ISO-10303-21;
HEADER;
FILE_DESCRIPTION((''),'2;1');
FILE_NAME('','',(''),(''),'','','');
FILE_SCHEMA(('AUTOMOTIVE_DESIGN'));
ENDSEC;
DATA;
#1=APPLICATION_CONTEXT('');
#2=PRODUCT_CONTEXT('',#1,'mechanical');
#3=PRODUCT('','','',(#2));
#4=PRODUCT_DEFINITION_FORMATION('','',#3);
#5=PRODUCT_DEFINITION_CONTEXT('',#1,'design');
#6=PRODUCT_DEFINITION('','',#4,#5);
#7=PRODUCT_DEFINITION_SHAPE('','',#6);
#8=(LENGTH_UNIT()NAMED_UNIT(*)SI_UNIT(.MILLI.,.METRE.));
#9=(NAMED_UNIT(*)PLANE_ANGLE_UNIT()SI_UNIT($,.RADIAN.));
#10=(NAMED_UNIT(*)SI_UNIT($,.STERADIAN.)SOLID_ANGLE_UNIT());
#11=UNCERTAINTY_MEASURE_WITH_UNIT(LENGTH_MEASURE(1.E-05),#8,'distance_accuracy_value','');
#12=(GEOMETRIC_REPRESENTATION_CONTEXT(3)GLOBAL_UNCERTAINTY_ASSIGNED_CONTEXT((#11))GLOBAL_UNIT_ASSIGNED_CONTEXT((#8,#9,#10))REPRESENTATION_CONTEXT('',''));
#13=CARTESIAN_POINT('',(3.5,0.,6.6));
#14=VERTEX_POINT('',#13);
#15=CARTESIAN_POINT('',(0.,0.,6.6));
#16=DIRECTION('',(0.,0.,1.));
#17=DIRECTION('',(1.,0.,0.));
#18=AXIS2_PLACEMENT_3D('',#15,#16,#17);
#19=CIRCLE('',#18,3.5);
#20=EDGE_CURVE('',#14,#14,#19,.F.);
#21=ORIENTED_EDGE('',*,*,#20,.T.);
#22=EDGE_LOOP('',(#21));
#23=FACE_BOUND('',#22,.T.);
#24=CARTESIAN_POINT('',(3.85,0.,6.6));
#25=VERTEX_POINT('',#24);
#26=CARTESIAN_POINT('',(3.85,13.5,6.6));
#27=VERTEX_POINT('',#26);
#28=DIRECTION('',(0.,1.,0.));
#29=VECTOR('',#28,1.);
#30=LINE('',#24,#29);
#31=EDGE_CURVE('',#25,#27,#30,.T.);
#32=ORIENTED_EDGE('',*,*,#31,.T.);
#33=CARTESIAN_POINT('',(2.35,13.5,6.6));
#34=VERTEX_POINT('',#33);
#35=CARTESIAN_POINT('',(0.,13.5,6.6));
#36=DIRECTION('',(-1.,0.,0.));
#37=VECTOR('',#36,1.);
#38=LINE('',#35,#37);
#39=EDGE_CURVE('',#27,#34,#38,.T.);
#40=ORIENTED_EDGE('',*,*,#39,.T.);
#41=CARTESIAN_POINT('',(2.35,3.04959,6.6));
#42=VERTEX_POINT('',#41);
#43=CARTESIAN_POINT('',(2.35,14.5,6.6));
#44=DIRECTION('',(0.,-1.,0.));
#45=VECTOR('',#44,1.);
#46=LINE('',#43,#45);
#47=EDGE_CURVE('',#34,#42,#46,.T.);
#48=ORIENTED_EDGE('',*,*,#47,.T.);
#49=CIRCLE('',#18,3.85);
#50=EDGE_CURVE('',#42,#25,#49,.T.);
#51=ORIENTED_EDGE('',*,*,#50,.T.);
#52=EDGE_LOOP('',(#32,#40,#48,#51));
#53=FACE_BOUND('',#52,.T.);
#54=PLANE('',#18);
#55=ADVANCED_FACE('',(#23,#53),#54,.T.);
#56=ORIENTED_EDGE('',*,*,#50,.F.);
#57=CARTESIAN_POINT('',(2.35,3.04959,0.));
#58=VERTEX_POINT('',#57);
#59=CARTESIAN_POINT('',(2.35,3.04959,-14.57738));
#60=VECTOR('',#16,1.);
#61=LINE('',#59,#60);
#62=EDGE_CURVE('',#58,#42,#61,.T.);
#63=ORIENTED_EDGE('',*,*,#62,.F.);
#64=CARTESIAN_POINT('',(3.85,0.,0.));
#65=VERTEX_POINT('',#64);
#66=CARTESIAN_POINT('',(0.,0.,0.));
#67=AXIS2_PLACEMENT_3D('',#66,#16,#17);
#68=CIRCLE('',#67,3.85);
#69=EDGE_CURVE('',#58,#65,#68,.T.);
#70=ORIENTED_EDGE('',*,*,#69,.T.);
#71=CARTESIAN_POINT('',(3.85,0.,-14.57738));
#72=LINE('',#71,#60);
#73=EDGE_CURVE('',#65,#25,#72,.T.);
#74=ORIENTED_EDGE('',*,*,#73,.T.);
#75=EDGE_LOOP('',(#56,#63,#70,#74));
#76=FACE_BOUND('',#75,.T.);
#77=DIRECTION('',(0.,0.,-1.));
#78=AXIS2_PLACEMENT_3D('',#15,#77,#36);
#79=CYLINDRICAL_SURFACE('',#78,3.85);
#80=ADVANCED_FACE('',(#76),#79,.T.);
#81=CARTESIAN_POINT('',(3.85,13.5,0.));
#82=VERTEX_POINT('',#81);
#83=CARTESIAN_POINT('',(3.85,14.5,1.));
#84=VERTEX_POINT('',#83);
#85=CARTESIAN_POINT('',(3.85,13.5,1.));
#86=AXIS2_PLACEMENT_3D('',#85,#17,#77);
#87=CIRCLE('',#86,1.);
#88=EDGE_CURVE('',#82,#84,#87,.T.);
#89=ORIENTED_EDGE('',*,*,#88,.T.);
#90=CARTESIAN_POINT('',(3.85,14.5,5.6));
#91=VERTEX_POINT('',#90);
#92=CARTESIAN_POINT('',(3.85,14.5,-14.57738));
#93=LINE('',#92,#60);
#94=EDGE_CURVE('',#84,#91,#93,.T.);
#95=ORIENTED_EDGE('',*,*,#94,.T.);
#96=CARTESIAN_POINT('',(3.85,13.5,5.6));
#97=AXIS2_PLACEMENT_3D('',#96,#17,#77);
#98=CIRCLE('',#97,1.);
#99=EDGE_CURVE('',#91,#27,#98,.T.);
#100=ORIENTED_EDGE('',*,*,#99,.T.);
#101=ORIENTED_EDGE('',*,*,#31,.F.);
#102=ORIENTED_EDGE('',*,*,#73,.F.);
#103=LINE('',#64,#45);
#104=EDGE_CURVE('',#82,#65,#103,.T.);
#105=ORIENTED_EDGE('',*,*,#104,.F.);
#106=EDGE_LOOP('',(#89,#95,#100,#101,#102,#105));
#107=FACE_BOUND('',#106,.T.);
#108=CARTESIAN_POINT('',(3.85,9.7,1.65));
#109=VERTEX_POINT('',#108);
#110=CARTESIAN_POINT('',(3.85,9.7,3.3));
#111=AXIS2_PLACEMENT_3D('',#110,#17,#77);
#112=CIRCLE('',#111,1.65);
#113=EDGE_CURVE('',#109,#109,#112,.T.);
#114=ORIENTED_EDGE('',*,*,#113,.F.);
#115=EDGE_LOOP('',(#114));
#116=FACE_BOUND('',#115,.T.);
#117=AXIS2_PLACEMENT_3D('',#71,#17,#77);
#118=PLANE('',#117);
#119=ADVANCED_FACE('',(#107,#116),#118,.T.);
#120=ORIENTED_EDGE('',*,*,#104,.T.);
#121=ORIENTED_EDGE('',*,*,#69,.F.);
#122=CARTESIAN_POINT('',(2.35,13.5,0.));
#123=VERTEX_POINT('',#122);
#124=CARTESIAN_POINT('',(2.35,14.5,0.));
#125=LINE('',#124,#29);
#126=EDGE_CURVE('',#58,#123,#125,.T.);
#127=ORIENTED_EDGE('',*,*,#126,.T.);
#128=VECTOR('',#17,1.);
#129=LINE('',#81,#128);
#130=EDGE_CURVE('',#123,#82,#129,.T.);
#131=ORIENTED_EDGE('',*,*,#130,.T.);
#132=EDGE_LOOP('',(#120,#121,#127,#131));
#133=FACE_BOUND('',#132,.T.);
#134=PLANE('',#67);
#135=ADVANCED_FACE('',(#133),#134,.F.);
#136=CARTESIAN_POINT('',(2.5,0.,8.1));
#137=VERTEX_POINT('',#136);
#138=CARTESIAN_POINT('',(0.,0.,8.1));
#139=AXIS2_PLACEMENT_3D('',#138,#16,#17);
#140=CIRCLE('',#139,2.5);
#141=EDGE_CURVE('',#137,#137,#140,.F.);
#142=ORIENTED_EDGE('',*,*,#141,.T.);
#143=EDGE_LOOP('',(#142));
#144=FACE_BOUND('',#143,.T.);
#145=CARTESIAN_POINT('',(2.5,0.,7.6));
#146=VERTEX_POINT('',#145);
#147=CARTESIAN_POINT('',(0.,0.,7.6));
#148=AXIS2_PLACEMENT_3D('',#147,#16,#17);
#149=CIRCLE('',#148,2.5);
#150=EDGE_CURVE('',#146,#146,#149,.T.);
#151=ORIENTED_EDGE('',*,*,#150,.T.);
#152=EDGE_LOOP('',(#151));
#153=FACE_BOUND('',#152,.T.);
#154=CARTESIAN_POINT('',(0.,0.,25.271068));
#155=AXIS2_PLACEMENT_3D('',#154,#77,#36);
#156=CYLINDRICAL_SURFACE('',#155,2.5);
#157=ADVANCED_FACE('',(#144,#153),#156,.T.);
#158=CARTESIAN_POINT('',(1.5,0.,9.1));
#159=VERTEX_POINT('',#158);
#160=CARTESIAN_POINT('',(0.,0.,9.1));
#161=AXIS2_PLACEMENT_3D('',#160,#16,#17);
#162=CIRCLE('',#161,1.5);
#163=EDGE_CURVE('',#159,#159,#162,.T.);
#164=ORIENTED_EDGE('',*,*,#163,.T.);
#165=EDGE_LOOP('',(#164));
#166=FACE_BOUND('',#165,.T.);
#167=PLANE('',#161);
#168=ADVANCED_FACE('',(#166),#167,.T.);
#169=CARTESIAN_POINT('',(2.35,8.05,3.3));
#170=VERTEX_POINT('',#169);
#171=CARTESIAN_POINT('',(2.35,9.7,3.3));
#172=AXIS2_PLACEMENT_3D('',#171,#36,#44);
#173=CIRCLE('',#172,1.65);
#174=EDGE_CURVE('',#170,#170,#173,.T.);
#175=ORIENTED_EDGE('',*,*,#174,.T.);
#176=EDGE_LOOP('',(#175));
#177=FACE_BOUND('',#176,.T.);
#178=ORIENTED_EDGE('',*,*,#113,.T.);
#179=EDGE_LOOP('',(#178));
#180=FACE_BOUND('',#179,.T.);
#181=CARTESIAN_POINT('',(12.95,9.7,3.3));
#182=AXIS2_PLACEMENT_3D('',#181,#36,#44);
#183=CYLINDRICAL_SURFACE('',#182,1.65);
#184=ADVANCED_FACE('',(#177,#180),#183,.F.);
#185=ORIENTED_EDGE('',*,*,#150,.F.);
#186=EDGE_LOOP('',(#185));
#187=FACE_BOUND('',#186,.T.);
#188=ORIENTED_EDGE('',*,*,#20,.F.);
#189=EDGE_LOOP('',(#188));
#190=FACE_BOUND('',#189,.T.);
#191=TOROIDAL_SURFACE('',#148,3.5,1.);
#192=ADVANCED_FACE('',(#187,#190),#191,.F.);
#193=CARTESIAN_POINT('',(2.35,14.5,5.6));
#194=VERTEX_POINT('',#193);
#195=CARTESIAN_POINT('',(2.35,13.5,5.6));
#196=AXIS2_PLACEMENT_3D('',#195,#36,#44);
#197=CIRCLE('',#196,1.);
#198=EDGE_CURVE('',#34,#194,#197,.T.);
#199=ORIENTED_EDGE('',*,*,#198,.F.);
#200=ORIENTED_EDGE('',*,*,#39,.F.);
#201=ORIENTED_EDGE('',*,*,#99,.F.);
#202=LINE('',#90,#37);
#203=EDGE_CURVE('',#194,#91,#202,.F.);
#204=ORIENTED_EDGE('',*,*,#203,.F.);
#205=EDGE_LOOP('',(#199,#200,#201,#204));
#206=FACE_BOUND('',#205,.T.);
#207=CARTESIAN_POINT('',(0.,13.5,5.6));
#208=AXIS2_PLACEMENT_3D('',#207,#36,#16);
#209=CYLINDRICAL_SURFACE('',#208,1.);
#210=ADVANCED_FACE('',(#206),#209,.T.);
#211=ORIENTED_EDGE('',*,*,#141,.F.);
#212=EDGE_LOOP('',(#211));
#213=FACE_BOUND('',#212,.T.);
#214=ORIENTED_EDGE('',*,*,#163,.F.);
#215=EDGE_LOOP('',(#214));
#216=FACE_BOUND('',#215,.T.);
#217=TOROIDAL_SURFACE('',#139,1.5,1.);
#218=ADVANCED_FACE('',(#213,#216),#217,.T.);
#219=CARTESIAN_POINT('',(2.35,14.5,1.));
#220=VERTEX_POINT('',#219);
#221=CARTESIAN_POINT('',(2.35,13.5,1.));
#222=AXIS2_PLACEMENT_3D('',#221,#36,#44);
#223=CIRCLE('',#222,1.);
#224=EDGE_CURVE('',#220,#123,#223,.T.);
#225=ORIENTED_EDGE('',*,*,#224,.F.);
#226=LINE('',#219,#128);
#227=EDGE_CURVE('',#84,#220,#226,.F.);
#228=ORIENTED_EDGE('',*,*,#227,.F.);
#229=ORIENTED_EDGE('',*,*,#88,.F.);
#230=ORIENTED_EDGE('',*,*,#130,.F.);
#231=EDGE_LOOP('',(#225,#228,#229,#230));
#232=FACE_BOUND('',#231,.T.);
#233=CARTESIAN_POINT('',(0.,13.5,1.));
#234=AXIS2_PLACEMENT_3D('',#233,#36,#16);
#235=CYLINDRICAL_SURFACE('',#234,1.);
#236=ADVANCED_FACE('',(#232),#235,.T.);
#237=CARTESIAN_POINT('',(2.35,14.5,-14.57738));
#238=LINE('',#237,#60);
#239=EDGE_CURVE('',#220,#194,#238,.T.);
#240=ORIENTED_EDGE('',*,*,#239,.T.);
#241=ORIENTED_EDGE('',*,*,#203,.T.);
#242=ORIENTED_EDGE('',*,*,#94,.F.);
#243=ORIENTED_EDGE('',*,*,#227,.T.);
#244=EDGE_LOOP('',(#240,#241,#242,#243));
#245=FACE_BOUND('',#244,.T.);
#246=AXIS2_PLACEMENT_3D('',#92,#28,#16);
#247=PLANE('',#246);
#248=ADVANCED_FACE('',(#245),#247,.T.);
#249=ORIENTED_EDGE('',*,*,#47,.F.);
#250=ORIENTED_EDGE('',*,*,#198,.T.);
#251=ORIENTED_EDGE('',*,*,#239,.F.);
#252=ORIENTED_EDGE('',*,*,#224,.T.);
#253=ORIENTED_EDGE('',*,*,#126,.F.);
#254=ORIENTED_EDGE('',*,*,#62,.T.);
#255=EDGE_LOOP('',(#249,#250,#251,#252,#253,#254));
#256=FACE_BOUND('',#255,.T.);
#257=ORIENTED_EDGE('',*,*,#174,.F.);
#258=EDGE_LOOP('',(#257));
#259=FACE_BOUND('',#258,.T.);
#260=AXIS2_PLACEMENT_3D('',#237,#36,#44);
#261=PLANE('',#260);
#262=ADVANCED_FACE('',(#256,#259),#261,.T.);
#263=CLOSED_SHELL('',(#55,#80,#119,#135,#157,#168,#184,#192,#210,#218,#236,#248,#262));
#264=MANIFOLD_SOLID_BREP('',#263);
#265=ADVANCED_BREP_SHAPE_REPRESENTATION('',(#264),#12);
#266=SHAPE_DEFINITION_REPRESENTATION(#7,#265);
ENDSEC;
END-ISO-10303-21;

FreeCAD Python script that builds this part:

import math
import FreeCAD as App
import Part
import Sketcher

V = App.Vector
Q = App.Units.Quantity


def edges_at(feature, points):
    """Names of the edges that pass closest to the given points."""
    edges = feature.Shape.Edges
    near = lambda p: min(range(len(edges)), key=lambda i: edges[i].distToShape(Part.Vertex(*p))[0])
    return sorted({f"Edge{near(p) + 1}" for p in points})

doc = App.newDocument("Part")
body = doc.addObject("PartDesign::Body", "Body")

sketch1 = body.newObject("Sketcher::SketchObject", "Sketch")
sketch1.AttachmentSupport = (doc.getObject("XY_Plane"), [""])
sketch1.MapMode = "FlatFace"
sketch1.addGeometry(Part.Circle(V(0, 0, 0), V(0, 0, 1), 3.85), False)
sketch1.addConstraint([
    Sketcher.Constraint("Coincident", 0, 3, -1, 1),
    Sketcher.Constraint("Diameter", 0, Q("7.7 mm")),
])
pad1 = body.newObject("PartDesign::Pad", "Pad")
pad1.Profile = sketch1
pad1.Length = 6.6

sketch2 = body.newObject("Sketcher::SketchObject", "Sketch001")
sketch2.AttachmentSupport = (doc.getObject("XY_Plane"), [""])
sketch2.MapMode = "FlatFace"
sketch2.addGeometry([
    Part.LineSegment(V(3.85, 0, 0), V(3.85, 14.5, 0)),
    Part.LineSegment(V(3.85, 14.5, 0), V(2.35, 14.5, 0)),
    Part.LineSegment(V(2.35, 14.5, 0), V(2.35, 3.04959, 0)),
    Part.ArcOfCircle(Part.Circle(V(0, 0, 0), V(0, 0, 1), 3.85), math.radians(0), math.radians(52.38232)),
], False)
sketch2.addConstraint([
    Sketcher.Constraint("Coincident", 0, 2, 1, 1),
    Sketcher.Constraint("Coincident", 1, 2, 2, 1),
    Sketcher.Constraint("Coincident", 2, 2, 3, 2),
    Sketcher.Constraint("Tangent", 3, 1, 0, 1),
    Sketcher.Constraint("Vertical", 0),
    Sketcher.Constraint("Horizontal", 1),
    Sketcher.Constraint("Vertical", 2),
    Sketcher.Constraint("Coincident", 3, 3, -1, 1),
    Sketcher.Constraint("Radius", 3, Q("3.85 mm")),
    Sketcher.Constraint("DistanceX", 1, 2, 1, 1, Q("1.5 mm")),
    Sketcher.Constraint("DistanceY", 0, 1, 0, 2, Q("14.5 mm")),
])
pad2 = body.newObject("PartDesign::Pad", "Pad001")
pad2.Profile = sketch2
pad2.Length = 6.6

sketch3 = body.newObject("Sketcher::SketchObject", "Sketch002")
sketch3.AttachmentSupport = (doc.getObject("XY_Plane"), [""])
sketch3.MapMode = "FlatFace"
sketch3.AttachmentOffset = App.Placement(V(0, 0, 6.6), App.Rotation())
sketch3.addGeometry(Part.Circle(V(0, 0, 0), V(0, 0, 1), 2.5), False)
sketch3.addConstraint([
    Sketcher.Constraint("Coincident", 0, 3, -1, 1),
    Sketcher.Constraint("Diameter", 0, Q("5 mm")),
])
pad3 = body.newObject("PartDesign::Pad", "Pad002")
pad3.Profile = sketch3
pad3.Length = 2.5
doc.recompute()

fillet = body.newObject("PartDesign::Fillet", "Fillet")
fillet.Base = (pad3, edges_at(pad3, [(-2.5, 0, 6.6), (-2.5, 0, 9.1)]))
fillet.Radius = 1

sketch4 = body.newObject("Sketcher::SketchObject", "Sketch003")
sketch4.AttachmentSupport = (doc.getObject("YZ_Plane"), [""])
sketch4.MapMode = "FlatFace"
sketch4.AttachmentOffset = App.Placement(V(0, 0, 2.35), App.Rotation())
sketch4.addGeometry(Part.Circle(V(9.7, 3.3, 0), V(0, 0, 1), 1.65), False)
sketch4.addConstraint([
    Sketcher.Constraint("Diameter", 0, Q("3.3 mm")),
    Sketcher.Constraint("DistanceX", -1, 1, 0, 3, Q("9.7 mm")),
    Sketcher.Constraint("DistanceY", -1, 1, 0, 3, Q("3.3 mm")),
])
pocket1 = body.newObject("PartDesign::Pocket", "Pocket")
pocket1.Profile = sketch4
pocket1.Length = 10.6
pocket1.Reversed = True
doc.recompute()

fillet2 = body.newObject("PartDesign::Fillet", "Fillet001")
fillet2.Base = (pocket1, edges_at(pocket1, [(3.1, 14.5, 6.6), (3.1, 14.5, 0)]))
fillet2.Radius = 1

doc.recompute()
